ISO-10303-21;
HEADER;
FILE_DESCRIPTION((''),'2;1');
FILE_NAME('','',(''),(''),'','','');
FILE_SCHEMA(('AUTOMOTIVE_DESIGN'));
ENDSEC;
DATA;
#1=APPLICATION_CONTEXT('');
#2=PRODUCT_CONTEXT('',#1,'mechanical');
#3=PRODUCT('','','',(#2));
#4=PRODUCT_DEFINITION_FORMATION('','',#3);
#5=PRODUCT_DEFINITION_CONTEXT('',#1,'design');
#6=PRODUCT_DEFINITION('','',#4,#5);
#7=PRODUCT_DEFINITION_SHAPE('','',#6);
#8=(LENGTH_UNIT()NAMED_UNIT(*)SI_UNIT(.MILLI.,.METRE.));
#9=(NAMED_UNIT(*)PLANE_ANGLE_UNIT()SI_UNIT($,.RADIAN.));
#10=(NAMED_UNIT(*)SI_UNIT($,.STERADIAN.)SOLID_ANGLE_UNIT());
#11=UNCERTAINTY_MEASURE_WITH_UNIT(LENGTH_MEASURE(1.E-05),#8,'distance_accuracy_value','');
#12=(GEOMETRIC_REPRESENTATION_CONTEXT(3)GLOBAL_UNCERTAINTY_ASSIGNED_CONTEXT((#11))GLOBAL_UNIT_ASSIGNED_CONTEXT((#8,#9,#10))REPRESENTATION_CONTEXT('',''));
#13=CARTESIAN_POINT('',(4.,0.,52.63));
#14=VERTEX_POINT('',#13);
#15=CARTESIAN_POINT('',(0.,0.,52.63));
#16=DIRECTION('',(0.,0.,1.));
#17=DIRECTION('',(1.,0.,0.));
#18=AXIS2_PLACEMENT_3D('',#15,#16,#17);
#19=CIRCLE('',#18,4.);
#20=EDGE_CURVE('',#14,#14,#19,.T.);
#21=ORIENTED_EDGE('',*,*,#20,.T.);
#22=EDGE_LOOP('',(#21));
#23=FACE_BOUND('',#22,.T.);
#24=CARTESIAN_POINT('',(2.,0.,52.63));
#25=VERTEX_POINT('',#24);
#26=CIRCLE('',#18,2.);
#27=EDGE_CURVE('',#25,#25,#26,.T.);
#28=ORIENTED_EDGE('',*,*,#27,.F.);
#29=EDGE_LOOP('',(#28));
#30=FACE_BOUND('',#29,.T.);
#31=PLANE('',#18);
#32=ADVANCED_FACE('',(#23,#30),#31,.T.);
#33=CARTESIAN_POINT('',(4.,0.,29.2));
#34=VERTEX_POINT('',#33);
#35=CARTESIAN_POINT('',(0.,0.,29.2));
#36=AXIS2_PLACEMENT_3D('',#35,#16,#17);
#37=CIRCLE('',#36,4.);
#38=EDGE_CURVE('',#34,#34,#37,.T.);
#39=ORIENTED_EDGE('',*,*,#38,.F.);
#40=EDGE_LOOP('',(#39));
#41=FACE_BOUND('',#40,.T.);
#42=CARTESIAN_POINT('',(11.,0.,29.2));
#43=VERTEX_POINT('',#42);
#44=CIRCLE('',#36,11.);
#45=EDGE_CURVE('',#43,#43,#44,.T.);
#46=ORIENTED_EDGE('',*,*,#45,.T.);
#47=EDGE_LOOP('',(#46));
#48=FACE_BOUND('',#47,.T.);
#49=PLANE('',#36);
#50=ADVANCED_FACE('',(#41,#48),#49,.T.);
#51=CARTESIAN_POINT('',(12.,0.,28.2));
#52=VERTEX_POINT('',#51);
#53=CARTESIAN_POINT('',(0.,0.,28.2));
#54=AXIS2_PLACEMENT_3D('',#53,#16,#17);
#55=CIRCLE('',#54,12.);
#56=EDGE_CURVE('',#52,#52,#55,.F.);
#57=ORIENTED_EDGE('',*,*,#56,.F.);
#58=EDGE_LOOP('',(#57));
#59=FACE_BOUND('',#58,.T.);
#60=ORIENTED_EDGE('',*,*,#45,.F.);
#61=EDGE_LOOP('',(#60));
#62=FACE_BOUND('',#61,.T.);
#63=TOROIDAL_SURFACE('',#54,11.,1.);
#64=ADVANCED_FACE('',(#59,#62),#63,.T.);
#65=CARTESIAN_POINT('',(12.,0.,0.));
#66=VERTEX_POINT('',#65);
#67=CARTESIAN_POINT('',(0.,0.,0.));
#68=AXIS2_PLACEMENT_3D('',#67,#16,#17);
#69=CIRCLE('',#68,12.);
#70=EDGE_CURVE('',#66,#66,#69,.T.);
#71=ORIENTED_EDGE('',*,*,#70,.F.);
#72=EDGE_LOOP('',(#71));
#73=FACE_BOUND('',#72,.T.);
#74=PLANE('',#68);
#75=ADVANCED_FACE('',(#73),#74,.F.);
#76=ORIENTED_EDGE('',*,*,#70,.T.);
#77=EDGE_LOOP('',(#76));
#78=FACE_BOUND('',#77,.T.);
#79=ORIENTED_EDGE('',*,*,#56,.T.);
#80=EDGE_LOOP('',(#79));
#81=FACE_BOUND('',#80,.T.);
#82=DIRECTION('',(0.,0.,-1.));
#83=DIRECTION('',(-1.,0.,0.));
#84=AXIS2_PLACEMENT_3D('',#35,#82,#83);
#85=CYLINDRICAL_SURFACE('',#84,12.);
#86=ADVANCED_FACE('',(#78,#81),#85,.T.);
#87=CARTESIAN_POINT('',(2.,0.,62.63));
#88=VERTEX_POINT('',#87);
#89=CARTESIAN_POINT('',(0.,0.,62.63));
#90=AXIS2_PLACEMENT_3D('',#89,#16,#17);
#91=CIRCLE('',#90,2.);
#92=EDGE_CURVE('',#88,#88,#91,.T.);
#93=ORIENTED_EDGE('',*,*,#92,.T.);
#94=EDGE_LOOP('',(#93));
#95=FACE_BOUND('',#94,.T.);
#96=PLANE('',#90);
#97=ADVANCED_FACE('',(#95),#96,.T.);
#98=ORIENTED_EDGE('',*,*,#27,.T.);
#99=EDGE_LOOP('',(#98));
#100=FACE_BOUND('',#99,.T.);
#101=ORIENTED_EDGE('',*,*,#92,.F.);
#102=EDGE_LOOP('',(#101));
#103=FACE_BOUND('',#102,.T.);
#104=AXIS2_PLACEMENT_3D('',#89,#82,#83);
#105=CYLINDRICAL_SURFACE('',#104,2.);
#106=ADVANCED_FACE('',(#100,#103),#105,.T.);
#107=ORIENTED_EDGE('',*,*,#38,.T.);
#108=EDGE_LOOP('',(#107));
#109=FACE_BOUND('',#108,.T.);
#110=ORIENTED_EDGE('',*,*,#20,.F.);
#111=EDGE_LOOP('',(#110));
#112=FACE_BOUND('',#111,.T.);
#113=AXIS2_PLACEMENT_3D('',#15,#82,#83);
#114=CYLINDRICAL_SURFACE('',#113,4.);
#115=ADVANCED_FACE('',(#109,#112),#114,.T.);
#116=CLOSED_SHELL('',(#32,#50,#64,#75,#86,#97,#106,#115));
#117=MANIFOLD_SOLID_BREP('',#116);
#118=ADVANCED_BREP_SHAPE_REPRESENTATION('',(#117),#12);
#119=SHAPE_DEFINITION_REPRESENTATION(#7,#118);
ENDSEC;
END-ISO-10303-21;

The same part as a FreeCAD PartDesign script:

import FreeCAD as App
import Part
import Sketcher
Q = App.Units.Quantity


def edges_at(feature, points):
    """Names of the edges that pass closest to the given points."""
    edges = feature.Shape.Edges
    near = lambda p: min(range(len(edges)), key=lambda i: edges[i].distToShape(Part.Vertex(*p))[0])
    return sorted({f"Edge{near(p) + 1}" for p in points})

doc = App.newDocument("Part")
body = doc.addObject("PartDesign::Body", "Body")

# Sketch on XY plane
sketch1 = body.newObject("Sketcher::SketchObject", "Sketch")
sketch1.AttachmentSupport = (doc.getObject("XY_Plane"), [""])
sketch1.MapMode = "FlatFace"
sketch1.addGeometry(Part.Circle(App.Vector(0, 0, 0), App.Vector(0, 0, 1), 12), False)
sketch1.addConstraint(Sketcher.Constraint("Coincident", 0, 3, -1, 1))
sketch1.addConstraint(Sketcher.Constraint("Diameter", 0, Q("24 mm")))
pad1 = body.newObject("PartDesign::Pad", "Pad")
pad1.Profile = sketch1
pad1.Length = 29.2
doc.recompute()

fillet = body.newObject("PartDesign::Fillet", "Fillet")
fillet.Base = (pad1, edges_at(pad1, [(-12, 0, 29.2)]))
fillet.Radius = 1

# Sketch on XY plane
sketch2 = body.newObject("Sketcher::SketchObject", "Sketch001")
sketch2.AttachmentSupport = (doc.getObject("XY_Plane"), [""])
sketch2.MapMode = "FlatFace"
sketch2.AttachmentOffset = App.Placement(App.Vector(0, 0, 29.2), App.Rotation())
sketch2.addGeometry(Part.Circle(App.Vector(0, 0, 0), App.Vector(0, 0, 1), 4), False)
sketch2.addConstraint(Sketcher.Constraint("Coincident", 0, 3, -1, 1))
sketch2.addConstraint(Sketcher.Constraint("Diameter", 0, Q("8 mm")))
pad2 = body.newObject("PartDesign::Pad", "Pad001")
pad2.Profile = sketch2
pad2.Length = 23.43

# Sketch on XY plane
sketch3 = body.newObject("Sketcher::SketchObject", "Sketch002")
sketch3.AttachmentSupport = (doc.getObject("XY_Plane"), [""])
sketch3.MapMode = "FlatFace"
sketch3.AttachmentOffset = App.Placement(App.Vector(0, 0, 52.63), App.Rotation())
sketch3.addGeometry(Part.Circle(App.Vector(0, 0, 0), App.Vector(0, 0, 1), 2), False)
sketch3.addConstraint(Sketcher.Constraint("Coincident", 0, 3, -1, 1))
sketch3.addConstraint(Sketcher.Constraint("Diameter", 0, Q("4 mm")))
pad3 = body.newObject("PartDesign::Pad", "Pad002")
pad3.Profile = sketch3
pad3.Length = 10

doc.recompute()
